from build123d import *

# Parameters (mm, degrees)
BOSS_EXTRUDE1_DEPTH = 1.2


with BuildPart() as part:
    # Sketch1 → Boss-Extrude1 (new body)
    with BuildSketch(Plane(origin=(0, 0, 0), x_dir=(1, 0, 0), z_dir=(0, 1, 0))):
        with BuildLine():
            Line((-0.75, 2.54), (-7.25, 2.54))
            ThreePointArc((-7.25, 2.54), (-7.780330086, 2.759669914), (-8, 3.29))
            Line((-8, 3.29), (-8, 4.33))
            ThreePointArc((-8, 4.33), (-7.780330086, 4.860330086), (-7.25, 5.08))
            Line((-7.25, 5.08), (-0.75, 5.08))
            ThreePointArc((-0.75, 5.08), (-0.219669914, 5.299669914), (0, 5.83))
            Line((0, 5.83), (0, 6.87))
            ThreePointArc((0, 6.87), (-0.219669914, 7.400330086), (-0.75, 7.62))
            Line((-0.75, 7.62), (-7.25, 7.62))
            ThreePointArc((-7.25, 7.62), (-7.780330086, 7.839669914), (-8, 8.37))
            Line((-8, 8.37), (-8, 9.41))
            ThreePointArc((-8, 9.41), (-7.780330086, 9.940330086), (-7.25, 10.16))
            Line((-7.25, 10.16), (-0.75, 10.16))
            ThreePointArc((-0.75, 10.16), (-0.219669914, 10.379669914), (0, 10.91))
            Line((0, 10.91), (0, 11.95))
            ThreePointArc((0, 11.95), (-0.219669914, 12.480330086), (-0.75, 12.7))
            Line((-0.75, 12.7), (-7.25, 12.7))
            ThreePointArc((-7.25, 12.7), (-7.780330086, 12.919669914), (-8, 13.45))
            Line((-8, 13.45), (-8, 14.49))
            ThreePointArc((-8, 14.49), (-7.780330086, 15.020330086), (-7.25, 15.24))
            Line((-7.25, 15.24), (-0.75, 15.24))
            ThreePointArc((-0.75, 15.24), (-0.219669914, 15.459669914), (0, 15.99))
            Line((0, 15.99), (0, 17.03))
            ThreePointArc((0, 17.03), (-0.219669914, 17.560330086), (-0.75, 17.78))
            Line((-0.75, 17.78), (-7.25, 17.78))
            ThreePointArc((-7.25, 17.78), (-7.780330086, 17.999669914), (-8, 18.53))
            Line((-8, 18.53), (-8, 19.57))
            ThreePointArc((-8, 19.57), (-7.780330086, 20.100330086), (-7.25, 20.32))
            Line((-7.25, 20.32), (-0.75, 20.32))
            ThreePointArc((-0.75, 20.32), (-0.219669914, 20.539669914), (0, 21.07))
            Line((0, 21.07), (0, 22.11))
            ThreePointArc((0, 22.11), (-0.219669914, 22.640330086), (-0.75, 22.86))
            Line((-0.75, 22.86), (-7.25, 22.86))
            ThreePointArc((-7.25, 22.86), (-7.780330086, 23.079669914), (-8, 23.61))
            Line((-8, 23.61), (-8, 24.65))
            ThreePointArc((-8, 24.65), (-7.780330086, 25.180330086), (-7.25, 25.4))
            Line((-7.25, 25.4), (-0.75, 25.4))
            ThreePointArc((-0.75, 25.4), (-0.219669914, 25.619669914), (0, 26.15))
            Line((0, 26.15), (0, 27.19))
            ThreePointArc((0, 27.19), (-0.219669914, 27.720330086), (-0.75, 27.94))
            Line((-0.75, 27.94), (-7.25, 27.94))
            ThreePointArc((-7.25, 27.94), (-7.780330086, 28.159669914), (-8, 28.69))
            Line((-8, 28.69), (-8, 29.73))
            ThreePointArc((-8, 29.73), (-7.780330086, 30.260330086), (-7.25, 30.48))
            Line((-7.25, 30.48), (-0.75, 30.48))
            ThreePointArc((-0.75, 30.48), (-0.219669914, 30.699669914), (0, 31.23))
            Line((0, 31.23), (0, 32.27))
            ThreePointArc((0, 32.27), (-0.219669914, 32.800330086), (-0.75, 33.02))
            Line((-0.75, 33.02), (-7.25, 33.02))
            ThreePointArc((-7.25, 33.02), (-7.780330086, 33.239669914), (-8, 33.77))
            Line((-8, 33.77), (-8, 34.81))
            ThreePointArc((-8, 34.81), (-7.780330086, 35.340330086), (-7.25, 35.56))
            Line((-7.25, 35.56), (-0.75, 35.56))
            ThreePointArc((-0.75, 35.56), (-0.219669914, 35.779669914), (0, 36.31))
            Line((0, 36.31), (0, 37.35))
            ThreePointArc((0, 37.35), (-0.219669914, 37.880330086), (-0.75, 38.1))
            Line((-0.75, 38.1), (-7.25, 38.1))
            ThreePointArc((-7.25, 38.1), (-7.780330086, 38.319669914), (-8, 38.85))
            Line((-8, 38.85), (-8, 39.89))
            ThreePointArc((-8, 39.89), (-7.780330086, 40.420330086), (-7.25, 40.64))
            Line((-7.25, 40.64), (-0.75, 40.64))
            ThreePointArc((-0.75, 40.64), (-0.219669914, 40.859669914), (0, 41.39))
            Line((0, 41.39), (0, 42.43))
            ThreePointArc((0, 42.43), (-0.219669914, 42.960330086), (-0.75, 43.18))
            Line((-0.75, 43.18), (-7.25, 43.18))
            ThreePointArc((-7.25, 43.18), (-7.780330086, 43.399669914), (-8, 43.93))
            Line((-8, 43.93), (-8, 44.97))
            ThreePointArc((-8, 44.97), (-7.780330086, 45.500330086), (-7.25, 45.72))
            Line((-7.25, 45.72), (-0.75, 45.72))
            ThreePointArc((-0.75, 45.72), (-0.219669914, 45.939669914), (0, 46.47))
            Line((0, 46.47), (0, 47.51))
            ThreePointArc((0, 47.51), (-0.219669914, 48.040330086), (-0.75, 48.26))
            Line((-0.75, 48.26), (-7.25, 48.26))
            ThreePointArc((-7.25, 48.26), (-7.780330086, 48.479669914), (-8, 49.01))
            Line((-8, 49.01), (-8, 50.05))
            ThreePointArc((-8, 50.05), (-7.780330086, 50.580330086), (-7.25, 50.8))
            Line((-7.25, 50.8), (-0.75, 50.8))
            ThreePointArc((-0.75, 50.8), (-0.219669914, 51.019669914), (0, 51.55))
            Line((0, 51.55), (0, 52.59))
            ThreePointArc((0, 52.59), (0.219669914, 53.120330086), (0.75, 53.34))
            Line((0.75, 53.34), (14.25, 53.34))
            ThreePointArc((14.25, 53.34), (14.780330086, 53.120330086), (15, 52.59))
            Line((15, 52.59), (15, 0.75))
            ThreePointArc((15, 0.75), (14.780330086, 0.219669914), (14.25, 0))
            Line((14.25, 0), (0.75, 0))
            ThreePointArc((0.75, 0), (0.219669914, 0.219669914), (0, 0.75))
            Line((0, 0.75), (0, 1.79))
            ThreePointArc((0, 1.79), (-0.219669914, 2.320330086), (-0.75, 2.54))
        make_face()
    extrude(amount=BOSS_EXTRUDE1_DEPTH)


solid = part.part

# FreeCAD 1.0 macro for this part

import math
import FreeCAD as App
import Part
import Sketcher

doc = App.newDocument("Part")
body = doc.addObject("PartDesign::Body", "Body")

sketch1 = doc.addObject("Sketcher::SketchObject", "Sketch")
body.addObject(sketch1)
sketch1.AttachmentSupport = (doc.XZ_Plane, [""])
sketch1.MapMode = "FlatFace"
sketch1.addGeometry([
    Part.LineSegment(App.Vector(-7.25, -2.54, 0), App.Vector(-0.75, -2.54, 0)),
    Part.ArcOfCircle(Part.Circle(App.Vector(-0.75, -1.79, 0), App.Vector(0, 0, 1), 0.75), math.radians(-90), math.radians(0)),
    Part.LineSegment(App.Vector(0, -1.79, 0), App.Vector(0, -0.75, 0)),
    Part.ArcOfCircle(Part.Circle(App.Vector(0.75, -0.75, 0), App.Vector(0, 0, 1), 0.75), math.radians(90), math.radians(180)),
    Part.LineSegment(App.Vector(0.75, 0, 0), App.Vector(14.25, 0, 0)),
    Part.ArcOfCircle(Part.Circle(App.Vector(14.25, -0.75, 0), App.Vector(0, 0, 1), 0.75), math.radians(0), math.radians(90)),
    Part.LineSegment(App.Vector(15, -0.75, 0), App.Vector(15, -52.59, 0)),
    Part.ArcOfCircle(Part.Circle(App.Vector(14.25, -52.59, 0), App.Vector(0, 0, 1), 0.75), math.radians(-90), math.radians(0)),
    Part.LineSegment(App.Vector(14.25, -53.34, 0), App.Vector(0.75, -53.34, 0)),
    Part.ArcOfCircle(Part.Circle(App.Vector(0.75, -52.59, 0), App.Vector(0, 0, 1), 0.75), math.radians(180), math.radians(270)),
    Part.LineSegment(App.Vector(0, -52.59, 0), App.Vector(0, -51.55, 0)),
    Part.ArcOfCircle(Part.Circle(App.Vector(-0.75, -51.55, 0), App.Vector(0, 0, 1), 0.75), math.radians(0), math.radians(90)),
    Part.LineSegment(App.Vector(-0.75, -50.8, 0), App.Vector(-7.25, -50.8, 0)),
    Part.ArcOfCircle(Part.Circle(App.Vector(-7.25, -50.05, 0), App.Vector(0, 0, 1), 0.75), math.radians(180), math.radians(270)),
    Part.LineSegment(App.Vector(-8, -50.05, 0), App.Vector(-8, -49.01, 0)),
    Part.ArcOfCircle(Part.Circle(App.Vector(-7.25, -49.01, 0), App.Vector(0, 0, 1), 0.75), math.radians(90), math.radians(180)),
    Part.LineSegment(App.Vector(-7.25, -48.26, 0), App.Vector(-0.75, -48.26, 0)),
    Part.ArcOfCircle(Part.Circle(App.Vector(-0.75, -47.51, 0), App.Vector(0, 0, 1), 0.75), math.radians(-90), math.radians(0)),
    Part.LineSegment(App.Vector(0, -47.51, 0), App.Vector(0, -46.47, 0)),
    Part.ArcOfCircle(Part.Circle(App.Vector(-0.75, -46.47, 0), App.Vector(0, 0, 1), 0.75), math.radians(0), math.radians(90)),
    Part.LineSegment(App.Vector(-0.75, -45.72, 0), App.Vector(-7.25, -45.72, 0)),
    Part.ArcOfCircle(Part.Circle(App.Vector(-7.25, -44.97, 0), App.Vector(0, 0, 1), 0.75), math.radians(180), math.radians(270)),
    Part.LineSegment(App.Vector(-8, -44.97, 0), App.Vector(-8, -43.93, 0)),
    Part.ArcOfCircle(Part.Circle(App.Vector(-7.25, -43.93, 0), App.Vector(0, 0, 1), 0.75), math.radians(90), math.radians(180)),
    Part.LineSegment(App.Vector(-7.25, -43.18, 0), App.Vector(-0.75, -43.18, 0)),
    Part.ArcOfCircle(Part.Circle(App.Vector(-0.75, -42.43, 0), App.Vector(0, 0, 1), 0.75), math.radians(-90), math.radians(0)),
    Part.LineSegment(App.Vector(0, -42.43, 0), App.Vector(0, -41.39, 0)),
    Part.ArcOfCircle(Part.Circle(App.Vector(-0.75, -41.39, 0), App.Vector(0, 0, 1), 0.75), math.radians(0), math.radians(90)),
    Part.LineSegment(App.Vector(-0.75, -40.64, 0), App.Vector(-7.25, -40.64, 0)),
    Part.ArcOfCircle(Part.Circle(App.Vector(-7.25, -39.89, 0), App.Vector(0, 0, 1), 0.75), math.radians(180), math.radians(270)),
    Part.LineSegment(App.Vector(-8, -39.89, 0), App.Vector(-8, -38.85, 0)),
    Part.ArcOfCircle(Part.Circle(App.Vector(-7.25, -38.85, 0), App.Vector(0, 0, 1), 0.75), math.radians(90), math.radians(180)),
    Part.LineSegment(App.Vector(-7.25, -38.1, 0), App.Vector(-0.75, -38.1, 0)),
    Part.ArcOfCircle(Part.Circle(App.Vector(-0.75, -37.35, 0), App.Vector(0, 0, 1), 0.75), math.radians(-90), math.radians(0)),
    Part.LineSegment(App.Vector(0, -37.35, 0), App.Vector(0, -36.31, 0)),
    Part.ArcOfCircle(Part.Circle(App.Vector(-0.75, -36.31, 0), App.Vector(0, 0, 1), 0.75), math.radians(0), math.radians(90)),
    Part.LineSegment(App.Vector(-0.75, -35.56, 0), App.Vector(-7.25, -35.56, 0)),
    Part.ArcOfCircle(Part.Circle(App.Vector(-7.25, -34.81, 0), App.Vector(0, 0, 1), 0.75), math.radians(180), math.radians(270)),
    Part.LineSegment(App.Vector(-8, -34.81, 0), App.Vector(-8, -33.77, 0)),
    Part.ArcOfCircle(Part.Circle(App.Vector(-7.25, -33.77, 0), App.Vector(0, 0, 1), 0.75), math.radians(90), math.radians(180)),
    Part.LineSegment(App.Vector(-7.25, -33.02, 0), App.Vector(-0.75, -33.02, 0)),
    Part.ArcOfCircle(Part.Circle(App.Vector(-0.75, -32.27, 0), App.Vector(0, 0, 1), 0.75), math.radians(-90), math.radians(0)),
    Part.LineSegment(App.Vector(0, -32.27, 0), App.Vector(0, -31.23, 0)),
    Part.ArcOfCircle(Part.Circle(App.Vector(-0.75, -31.23, 0), App.Vector(0, 0, 1), 0.75), math.radians(0), math.radians(90)),
    Part.LineSegment(App.Vector(-0.75, -30.48, 0), App.Vector(-7.25, -30.48, 0)),
    Part.ArcOfCircle(Part.Circle(App.Vector(-7.25, -29.73, 0), App.Vector(0, 0, 1), 0.75), math.radians(180), math.radians(270)),
    Part.LineSegment(App.Vector(-8, -29.73, 0), App.Vector(-8, -28.69, 0)),
    Part.ArcOfCircle(Part.Circle(App.Vector(-7.25, -28.69, 0), App.Vector(0, 0, 1), 0.75), math.radians(90), math.radians(180)),
    Part.LineSegment(App.Vector(-7.25, -27.94, 0), App.Vector(-0.75, -27.94, 0)),
    Part.ArcOfCircle(Part.Circle(App.Vector(-0.75, -27.19, 0), App.Vector(0, 0, 1), 0.75), math.radians(-90), math.radians(0)),
    Part.LineSegment(App.Vector(0, -27.19, 0), App.Vector(0, -26.15, 0)),
    Part.ArcOfCircle(Part.Circle(App.Vector(-0.75, -26.15, 0), App.Vector(0, 0, 1), 0.75), math.radians(0), math.radians(90)),
    Part.LineSegment(App.Vector(-0.75, -25.4, 0), App.Vector(-7.25, -25.4, 0)),
    Part.ArcOfCircle(Part.Circle(App.Vector(-7.25, -24.65, 0), App.Vector(0, 0, 1), 0.75), math.radians(180), math.radians(270)),
    Part.LineSegment(App.Vector(-8, -24.65, 0), App.Vector(-8, -23.61, 0)),
    Part.ArcOfCircle(Part.Circle(App.Vector(-7.25, -23.61, 0), App.Vector(0, 0, 1), 0.75), math.radians(90), math.radians(180)),
    Part.LineSegment(App.Vector(-7.25, -22.86, 0), App.Vector(-0.75, -22.86, 0)),
    Part.ArcOfCircle(Part.Circle(App.Vector(-0.75, -22.11, 0), App.Vector(0, 0, 1), 0.75), math.radians(-90), math.radians(0)),
    Part.LineSegment(App.Vector(0, -22.11, 0), App.Vector(0, -21.07, 0)),
    Part.ArcOfCircle(Part.Circle(App.Vector(-0.75, -21.07, 0), App.Vector(0, 0, 1), 0.75), math.radians(0), math.radians(90)),
    Part.LineSegment(App.Vector(-0.75, -20.32, 0), App.Vector(-7.25, -20.32, 0)),
    Part.ArcOfCircle(Part.Circle(App.Vector(-7.25, -19.57, 0), App.Vector(0, 0, 1), 0.75), math.radians(180), math.radians(270)),
    Part.LineSegment(App.Vector(-8, -19.57, 0), App.Vector(-8, -18.53, 0)),
    Part.ArcOfCircle(Part.Circle(App.Vector(-7.25, -18.53, 0), App.Vector(0, 0, 1), 0.75), math.radians(90), math.radians(180)),
    Part.LineSegment(App.Vector(-7.25, -17.78, 0), App.Vector(-0.75, -17.78, 0)),
    Part.ArcOfCircle(Part.Circle(App.Vector(-0.75, -17.03, 0), App.Vector(0, 0, 1), 0.75), math.radians(-90), math.radians(0)),
    Part.LineSegment(App.Vector(0, -17.03, 0), App.Vector(0, -15.99, 0)),
    Part.ArcOfCircle(Part.Circle(App.Vector(-0.75, -15.99, 0), App.Vector(0, 0, 1), 0.75), math.radians(0), math.radians(90)),
    Part.LineSegment(App.Vector(-0.75, -15.24, 0), App.Vector(-7.25, -15.24, 0)),
    Part.ArcOfCircle(Part.Circle(App.Vector(-7.25, -14.49, 0), App.Vector(0, 0, 1), 0.75), math.radians(180), math.radians(270)),
    Part.LineSegment(App.Vector(-8, -14.49, 0), App.Vector(-8, -13.45, 0)),
    Part.ArcOfCircle(Part.Circle(App.Vector(-7.25, -13.45, 0), App.Vector(0, 0, 1), 0.75), math.radians(90), math.radians(180)),
    Part.LineSegment(App.Vector(-7.25, -12.7, 0), App.Vector(-0.75, -12.7, 0)),
    Part.ArcOfCircle(Part.Circle(App.Vector(-0.75, -11.95, 0), App.Vector(0, 0, 1), 0.75), math.radians(-90), math.radians(0)),
    Part.LineSegment(App.Vector(0, -11.95, 0), App.Vector(0, -10.91, 0)),
    Part.ArcOfCircle(Part.Circle(App.Vector(-0.75, -10.91, 0), App.Vector(0, 0, 1), 0.75), math.radians(0), math.radians(90)),
    Part.LineSegment(App.Vector(-0.75, -10.16, 0), App.Vector(-7.25, -10.16, 0)),
    Part.ArcOfCircle(Part.Circle(App.Vector(-7.25, -9.41, 0), App.Vector(0, 0, 1), 0.75), math.radians(180), math.radians(270)),
    Part.LineSegment(App.Vector(-8, -9.41, 0), App.Vector(-8, -8.37, 0)),
    Part.ArcOfCircle(Part.Circle(App.Vector(-7.25, -8.37, 0), App.Vector(0, 0, 1), 0.75), math.radians(90), math.radians(180)),
    Part.LineSegment(App.Vector(-7.25, -7.62, 0), App.Vector(-0.75, -7.62, 0)),
    Part.ArcOfCircle(Part.Circle(App.Vector(-0.75, -6.87, 0), App.Vector(0, 0, 1), 0.75), math.radians(-90), math.radians(0)),
    Part.LineSegment(App.Vector(0, -6.87, 0), App.Vector(0, -5.83, 0)),
    Part.ArcOfCircle(Part.Circle(App.Vector(-0.75, -5.83, 0), App.Vector(0, 0, 1), 0.75), math.radians(0), math.radians(90)),
    Part.LineSegment(App.Vector(-0.75, -5.08, 0), App.Vector(-7.25, -5.08, 0)),
    Part.ArcOfCircle(Part.Circle(App.Vector(-7.25, -4.33, 0), App.Vector(0, 0, 1), 0.75), math.radians(180), math.radians(270)),
    Part.LineSegment(App.Vector(-8, -4.33, 0), App.Vector(-8, -3.29, 0)),
    Part.ArcOfCircle(Part.Circle(App.Vector(-7.25, -3.29, 0), App.Vector(0, 0, 1), 0.75), math.radians(90), math.radians(180)),
], False)
sketch1.addConstraint([
    Sketcher.Constraint("Tangent", 0, 2, 1, 1),
    Sketcher.Constraint("Tangent", 1, 2, 2, 1),
    Sketcher.Constraint("Tangent", 2, 2, 3, 2),
    Sketcher.Constraint("Tangent", 3, 1, 4, 1),
    Sketcher.Constraint("Tangent", 4, 2, 5, 2),
    Sketcher.Constraint("Tangent", 5, 1, 6, 1),
    Sketcher.Constraint("Tangent", 6, 2, 7, 2),
    Sketcher.Constraint("Tangent", 7, 1, 8, 1),
    Sketcher.Constraint("Tangent", 8, 2, 9, 2),
    Sketcher.Constraint("Tangent", 9, 1, 10, 1),
    Sketcher.Constraint("Tangent", 10, 2, 11, 1),
    Sketcher.Constraint("Tangent", 11, 2, 12, 1),
    Sketcher.Constraint("Tangent", 12, 2, 13, 2),
    Sketcher.Constraint("Tangent", 13, 1, 14, 1),
    Sketcher.Constraint("Tangent", 14, 2, 15, 2),
    Sketcher.Constraint("Tangent", 15, 1, 16, 1),
    Sketcher.Constraint("Tangent", 16, 2, 17, 1),
    Sketcher.Constraint("Tangent", 17, 2, 18, 1),
    Sketcher.Constraint("Tangent", 18, 2, 19, 1),
    Sketcher.Constraint("Tangent", 19, 2, 20, 1),
    Sketcher.Constraint("Tangent", 20, 2, 21, 2),
    Sketcher.Constraint("Tangent", 21, 1, 22, 1),
    Sketcher.Constraint("Tangent", 22, 2, 23, 2),
    Sketcher.Constraint("Tangent", 23, 1, 24, 1),
    Sketcher.Constraint("Tangent", 24, 2, 25, 1),
    Sketcher.Constraint("Tangent", 25, 2, 26, 1),
    Sketcher.Constraint("Tangent", 26, 2, 27, 1),
    Sketcher.Constraint("Tangent", 27, 2, 28, 1),
    Sketcher.Constraint("Tangent", 28, 2, 29, 2),
    Sketcher.Constraint("Tangent", 29, 1, 30, 1),
    Sketcher.Constraint("Tangent", 30, 2, 31, 2),
    Sketcher.Constraint("Tangent", 31, 1, 32, 1),
    Sketcher.Constraint("Tangent", 32, 2, 33, 1),
    Sketcher.Constraint("Tangent", 33, 2, 34, 1),
    Sketcher.Constraint("Tangent", 34, 2, 35, 1),
    Sketcher.Constraint("Tangent", 35, 2, 36, 1),
    Sketcher.Constraint("Tangent", 36, 2, 37, 2),
    Sketcher.Constraint("Tangent", 37, 1, 38, 1),
    Sketcher.Constraint("Tangent", 38, 2, 39, 2),
    Sketcher.Constraint("Tangent", 39, 1, 40, 1),
    Sketcher.Constraint("Tangent", 40, 2, 41, 1),
    Sketcher.Constraint("Tangent", 41, 2, 42, 1),
    Sketcher.Constraint("Tangent", 42, 2, 43, 1),
    Sketcher.Constraint("Tangent", 43, 2, 44, 1),
    Sketcher.Constraint("Tangent", 44, 2, 45, 2),
    Sketcher.Constraint("Tangent", 45, 1, 46, 1),
    Sketcher.Constraint("Tangent", 46, 2, 47, 2),
    Sketcher.Constraint("Tangent", 47, 1, 48, 1),
    Sketcher.Constraint("Tangent", 48, 2, 49, 1),
    Sketcher.Constraint("Tangent", 49, 2, 50, 1),
    Sketcher.Constraint("Tangent", 50, 2, 51, 1),
    Sketcher.Constraint("Tangent", 51, 2, 52, 1),
    Sketcher.Constraint("Tangent", 52, 2, 53, 2),
    Sketcher.Constraint("Tangent", 53, 1, 54, 1),
    Sketcher.Constraint("Tangent", 54, 2, 55, 2),
    Sketcher.Constraint("Tangent", 55, 1, 56, 1),
    Sketcher.Constraint("Tangent", 56, 2, 57, 1),
    Sketcher.Constraint("Tangent", 57, 2, 58, 1),
    Sketcher.Constraint("Tangent", 58, 2, 59, 1),
    Sketcher.Constraint("Tangent", 59, 2, 60, 1),
    Sketcher.Constraint("Tangent", 60, 2, 61, 2),
    Sketcher.Constraint("Tangent", 61, 1, 62, 1),
    Sketcher.Constraint("Tangent", 62, 2, 63, 2),
    Sketcher.Constraint("Tangent", 63, 1, 64, 1),
    Sketcher.Constraint("Tangent", 64, 2, 65, 1),
    Sketcher.Constraint("Tangent", 65, 2, 66, 1),
    Sketcher.Constraint("Tangent", 66, 2, 67, 1),
    Sketcher.Constraint("Tangent", 67, 2, 68, 1),
    Sketcher.Constraint("Tangent", 68, 2, 69, 2),
    Sketcher.Constraint("Tangent", 69, 1, 70, 1),
    Sketcher.Constraint("Tangent", 70, 2, 71, 2),
    Sketcher.Constraint("Tangent", 71, 1, 72, 1),
    Sketcher.Constraint("Tangent", 72, 2, 73, 1),
    Sketcher.Constraint("Tangent", 73, 2, 74, 1),
    Sketcher.Constraint("Tangent", 74, 2, 75, 1),
    Sketcher.Constraint("Tangent", 75, 2, 76, 1),
    Sketcher.Constraint("Tangent", 76, 2, 77, 2),
    Sketcher.Constraint("Tangent", 77, 1, 78, 1),
    Sketcher.Constraint("Tangent", 78, 2, 79, 2),
    Sketcher.Constraint("Tangent", 79, 1, 80, 1),
    Sketcher.Constraint("Tangent", 80, 2, 81, 1),
    Sketcher.Constraint("Tangent", 81, 2, 82, 1),
    Sketcher.Constraint("Tangent", 82, 2, 83, 1),
    Sketcher.Constraint("Tangent", 83, 2, 84, 1),
    Sketcher.Constraint("Tangent", 84, 2, 85, 2),
    Sketcher.Constraint("Tangent", 85, 1, 86, 1),
    Sketcher.Constraint("Tangent", 86, 2, 87, 2),
    Sketcher.Constraint("Tangent", 87, 1, 0, 1),
    Sketcher.Constraint("Horizontal", 0),
    Sketcher.Constraint("Vertical", 2),
    Sketcher.Constraint("Horizontal", 4),
    Sketcher.Constraint("Vertical", 6),
    Sketcher.Constraint("Horizontal", 8),
    Sketcher.Constraint("Vertical", 10),
    Sketcher.Constraint("Horizontal", 12),
    Sketcher.Constraint("Vertical", 14),
    Sketcher.Constraint("Horizontal", 16),
    Sketcher.Constraint("Vertical", 18),
    Sketcher.Constraint("Horizontal", 20),
    Sketcher.Constraint("Vertical", 22),
    Sketcher.Constraint("Horizontal", 24),
    Sketcher.Constraint("Vertical", 26),
    Sketcher.Constraint("Horizontal", 28),
    Sketcher.Constraint("Vertical", 30),
    Sketcher.Constraint("Horizontal", 32),
    Sketcher.Constraint("Vertical", 34),
    Sketcher.Constraint("Horizontal", 36),
    Sketcher.Constraint("Vertical", 38),
    Sketcher.Constraint("Horizontal", 40),
    Sketcher.Constraint("Vertical", 42),
    Sketcher.Constraint("Horizontal", 44),
    Sketcher.Constraint("Vertical", 46),
    Sketcher.Constraint("Horizontal", 48),
    Sketcher.Constraint("Vertical", 50),
    Sketcher.Constraint("Horizontal", 52),
    Sketcher.Constraint("Vertical", 54),
    Sketcher.Constraint("Horizontal", 56),
    Sketcher.Constraint("Vertical", 58),
    Sketcher.Constraint("Horizontal", 60),
    Sketcher.Constraint("Vertical", 62),
    Sketcher.Constraint("Horizontal", 64),
    Sketcher.Constraint("Vertical", 66),
    Sketcher.Constraint("Horizontal", 68),
    Sketcher.Constraint("Vertical", 70),
    Sketcher.Constraint("Horizontal", 72),
    Sketcher.Constraint("Vertical", 74),
    Sketcher.Constraint("Horizontal", 76),
    Sketcher.Constraint("Vertical", 78),
    Sketcher.Constraint("Horizontal", 80),
    Sketcher.Constraint("Vertical", 82),
    Sketcher.Constraint("Horizontal", 84),
    Sketcher.Constraint("Vertical", 86),
    Sketcher.Constraint("Equal", 1, 3),
    Sketcher.Constraint("Equal", 3, 5),
    Sketcher.Constraint("Equal", 5, 7),
    Sketcher.Constraint("Equal", 7, 9),
    Sketcher.Constraint("Equal", 9, 11),
    Sketcher.Constraint("Equal", 11, 13),
    Sketcher.Constraint("Equal", 13, 15),
    Sketcher.Constraint("Equal", 15, 17),
    Sketcher.Constraint("Equal", 17, 19),
    Sketcher.Constraint("Equal", 19, 21),
    Sketcher.Constraint("Equal", 21, 23),
    Sketcher.Constraint("Equal", 23, 25),
    Sketcher.Constraint("Equal", 25, 27),
    Sketcher.Constraint("Equal", 27, 29),
    Sketcher.Constraint("Equal", 29, 31),
    Sketcher.Constraint("Equal", 31, 33),
    Sketcher.Constraint("Equal", 33, 35),
    Sketcher.Constraint("Equal", 35, 37),
    Sketcher.Constraint("Equal", 37, 39),
    Sketcher.Constraint("Equal", 39, 41),
    Sketcher.Constraint("Equal", 41, 43),
    Sketcher.Constraint("Equal", 43, 45),
    Sketcher.Constraint("Equal", 45, 47),
    Sketcher.Constraint("Equal", 47, 49),
    Sketcher.Constraint("Equal", 49, 51),
    Sketcher.Constraint("Equal", 51, 53),
    Sketcher.Constraint("Equal", 53, 55),
    Sketcher.Constraint("Equal", 55, 57),
    Sketcher.Constraint("Equal", 57, 59),
    Sketcher.Constraint("Equal", 59, 61),
    Sketcher.Constraint("Equal", 61, 63),
    Sketcher.Constraint("Equal", 63, 65),
    Sketcher.Constraint("Equal", 65, 67),
    Sketcher.Constraint("Equal", 67, 69),
    Sketcher.Constraint("Equal", 69, 71),
    Sketcher.Constraint("Equal", 71, 73),
    Sketcher.Constraint("Equal", 73, 75),
    Sketcher.Constraint("Equal", 75, 77),
    Sketcher.Constraint("Equal", 77, 79),
    Sketcher.Constraint("Equal", 79, 81),
    Sketcher.Constraint("Equal", 81, 83),
    Sketcher.Constraint("Equal", 83, 85),
    Sketcher.Constraint("Equal", 85, 87),
    Sketcher.Constraint("PointOnObject", 1, 2, -2),
    Sketcher.Constraint("PointOnObject", 3, 1, -1),
    Sketcher.Constraint("PointOnObject", 9, 1, -2),
    Sketcher.Constraint("PointOnObject", 17, 2, -2),
    Sketcher.Constraint("PointOnObject", 25, 2, -2),
    Sketcher.Constraint("PointOnObject", 33, 2, -2),
    Sketcher.Constraint("PointOnObject", 41, 2, -2),
    Sketcher.Constraint("PointOnObject", 49, 2, -2),
    Sketcher.Constraint("PointOnObject", 57, 2, -2),
    Sketcher.Constraint("PointOnObject", 65, 2, -2),
    Sketcher.Constraint("PointOnObject", 73, 2, -2),
    Sketcher.Constraint("PointOnObject", 81, 2, -2),
    Sketcher.Constraint("Vertical", 15, 3, 21, 3),
    Sketcher.Constraint("Vertical", 23, 3, 29, 3),
    Sketcher.Constraint("Vertical", 31, 3, 37, 3),
    Sketcher.Constraint("Vertical", 39, 3, 45, 3),
    Sketcher.Constraint("Vertical", 47, 3, 53, 3),
    Sketcher.Constraint("Vertical", 55, 3, 61, 3),
    Sketcher.Constraint("Vertical", 63, 3, 69, 3),
    Sketcher.Constraint("Vertical", 71, 3, 77, 3),
    Sketcher.Constraint("Vertical", 79, 3, 85, 3),
    Sketcher.Constraint("Equal", 2, 10),
    Sketcher.Constraint("Equal", 10, 14),
    Sketcher.Constraint("Equal", 14, 18),
    Sketcher.Constraint("Equal", 18, 22),
    Sketcher.Constraint("Equal", 22, 26),
    Sketcher.Constraint("Equal", 26, 30),
    Sketcher.Constraint("Equal", 30, 34),
    Sketcher.Constraint("Equal", 34, 38),
    Sketcher.Constraint("Equal", 38, 42),
    Sketcher.Constraint("Equal", 42, 46),
    Sketcher.Constraint("Equal", 46, 50),
    Sketcher.Constraint("Equal", 50, 54),
    Sketcher.Constraint("Equal", 54, 58),
    Sketcher.Constraint("Equal", 58, 62),
    Sketcher.Constraint("Equal", 62, 66),
    Sketcher.Constraint("Equal", 66, 70),
    Sketcher.Constraint("Equal", 70, 74),
    Sketcher.Constraint("Equal", 74, 78),
    Sketcher.Constraint("Equal", 78, 82),
    Sketcher.Constraint("Equal", 82, 86),
    Sketcher.Constraint("Radius", 1, 0.75),
    Sketcher.Constraint("DistanceX", 0, 1, 0, 2, 6.5),
    Sketcher.Constraint("DistanceX", 4, 1, 4, 2, 13.5),
    Sketcher.Constraint("DistanceY", 2, 1, 2, 2, 1.04),
])
pad1 = doc.addObject("PartDesign::Pad", "Pad")
body.addObject(pad1)
pad1.Profile = sketch1
pad1.Length = 1.2
pad1.Reversed = True

doc.recompute()
